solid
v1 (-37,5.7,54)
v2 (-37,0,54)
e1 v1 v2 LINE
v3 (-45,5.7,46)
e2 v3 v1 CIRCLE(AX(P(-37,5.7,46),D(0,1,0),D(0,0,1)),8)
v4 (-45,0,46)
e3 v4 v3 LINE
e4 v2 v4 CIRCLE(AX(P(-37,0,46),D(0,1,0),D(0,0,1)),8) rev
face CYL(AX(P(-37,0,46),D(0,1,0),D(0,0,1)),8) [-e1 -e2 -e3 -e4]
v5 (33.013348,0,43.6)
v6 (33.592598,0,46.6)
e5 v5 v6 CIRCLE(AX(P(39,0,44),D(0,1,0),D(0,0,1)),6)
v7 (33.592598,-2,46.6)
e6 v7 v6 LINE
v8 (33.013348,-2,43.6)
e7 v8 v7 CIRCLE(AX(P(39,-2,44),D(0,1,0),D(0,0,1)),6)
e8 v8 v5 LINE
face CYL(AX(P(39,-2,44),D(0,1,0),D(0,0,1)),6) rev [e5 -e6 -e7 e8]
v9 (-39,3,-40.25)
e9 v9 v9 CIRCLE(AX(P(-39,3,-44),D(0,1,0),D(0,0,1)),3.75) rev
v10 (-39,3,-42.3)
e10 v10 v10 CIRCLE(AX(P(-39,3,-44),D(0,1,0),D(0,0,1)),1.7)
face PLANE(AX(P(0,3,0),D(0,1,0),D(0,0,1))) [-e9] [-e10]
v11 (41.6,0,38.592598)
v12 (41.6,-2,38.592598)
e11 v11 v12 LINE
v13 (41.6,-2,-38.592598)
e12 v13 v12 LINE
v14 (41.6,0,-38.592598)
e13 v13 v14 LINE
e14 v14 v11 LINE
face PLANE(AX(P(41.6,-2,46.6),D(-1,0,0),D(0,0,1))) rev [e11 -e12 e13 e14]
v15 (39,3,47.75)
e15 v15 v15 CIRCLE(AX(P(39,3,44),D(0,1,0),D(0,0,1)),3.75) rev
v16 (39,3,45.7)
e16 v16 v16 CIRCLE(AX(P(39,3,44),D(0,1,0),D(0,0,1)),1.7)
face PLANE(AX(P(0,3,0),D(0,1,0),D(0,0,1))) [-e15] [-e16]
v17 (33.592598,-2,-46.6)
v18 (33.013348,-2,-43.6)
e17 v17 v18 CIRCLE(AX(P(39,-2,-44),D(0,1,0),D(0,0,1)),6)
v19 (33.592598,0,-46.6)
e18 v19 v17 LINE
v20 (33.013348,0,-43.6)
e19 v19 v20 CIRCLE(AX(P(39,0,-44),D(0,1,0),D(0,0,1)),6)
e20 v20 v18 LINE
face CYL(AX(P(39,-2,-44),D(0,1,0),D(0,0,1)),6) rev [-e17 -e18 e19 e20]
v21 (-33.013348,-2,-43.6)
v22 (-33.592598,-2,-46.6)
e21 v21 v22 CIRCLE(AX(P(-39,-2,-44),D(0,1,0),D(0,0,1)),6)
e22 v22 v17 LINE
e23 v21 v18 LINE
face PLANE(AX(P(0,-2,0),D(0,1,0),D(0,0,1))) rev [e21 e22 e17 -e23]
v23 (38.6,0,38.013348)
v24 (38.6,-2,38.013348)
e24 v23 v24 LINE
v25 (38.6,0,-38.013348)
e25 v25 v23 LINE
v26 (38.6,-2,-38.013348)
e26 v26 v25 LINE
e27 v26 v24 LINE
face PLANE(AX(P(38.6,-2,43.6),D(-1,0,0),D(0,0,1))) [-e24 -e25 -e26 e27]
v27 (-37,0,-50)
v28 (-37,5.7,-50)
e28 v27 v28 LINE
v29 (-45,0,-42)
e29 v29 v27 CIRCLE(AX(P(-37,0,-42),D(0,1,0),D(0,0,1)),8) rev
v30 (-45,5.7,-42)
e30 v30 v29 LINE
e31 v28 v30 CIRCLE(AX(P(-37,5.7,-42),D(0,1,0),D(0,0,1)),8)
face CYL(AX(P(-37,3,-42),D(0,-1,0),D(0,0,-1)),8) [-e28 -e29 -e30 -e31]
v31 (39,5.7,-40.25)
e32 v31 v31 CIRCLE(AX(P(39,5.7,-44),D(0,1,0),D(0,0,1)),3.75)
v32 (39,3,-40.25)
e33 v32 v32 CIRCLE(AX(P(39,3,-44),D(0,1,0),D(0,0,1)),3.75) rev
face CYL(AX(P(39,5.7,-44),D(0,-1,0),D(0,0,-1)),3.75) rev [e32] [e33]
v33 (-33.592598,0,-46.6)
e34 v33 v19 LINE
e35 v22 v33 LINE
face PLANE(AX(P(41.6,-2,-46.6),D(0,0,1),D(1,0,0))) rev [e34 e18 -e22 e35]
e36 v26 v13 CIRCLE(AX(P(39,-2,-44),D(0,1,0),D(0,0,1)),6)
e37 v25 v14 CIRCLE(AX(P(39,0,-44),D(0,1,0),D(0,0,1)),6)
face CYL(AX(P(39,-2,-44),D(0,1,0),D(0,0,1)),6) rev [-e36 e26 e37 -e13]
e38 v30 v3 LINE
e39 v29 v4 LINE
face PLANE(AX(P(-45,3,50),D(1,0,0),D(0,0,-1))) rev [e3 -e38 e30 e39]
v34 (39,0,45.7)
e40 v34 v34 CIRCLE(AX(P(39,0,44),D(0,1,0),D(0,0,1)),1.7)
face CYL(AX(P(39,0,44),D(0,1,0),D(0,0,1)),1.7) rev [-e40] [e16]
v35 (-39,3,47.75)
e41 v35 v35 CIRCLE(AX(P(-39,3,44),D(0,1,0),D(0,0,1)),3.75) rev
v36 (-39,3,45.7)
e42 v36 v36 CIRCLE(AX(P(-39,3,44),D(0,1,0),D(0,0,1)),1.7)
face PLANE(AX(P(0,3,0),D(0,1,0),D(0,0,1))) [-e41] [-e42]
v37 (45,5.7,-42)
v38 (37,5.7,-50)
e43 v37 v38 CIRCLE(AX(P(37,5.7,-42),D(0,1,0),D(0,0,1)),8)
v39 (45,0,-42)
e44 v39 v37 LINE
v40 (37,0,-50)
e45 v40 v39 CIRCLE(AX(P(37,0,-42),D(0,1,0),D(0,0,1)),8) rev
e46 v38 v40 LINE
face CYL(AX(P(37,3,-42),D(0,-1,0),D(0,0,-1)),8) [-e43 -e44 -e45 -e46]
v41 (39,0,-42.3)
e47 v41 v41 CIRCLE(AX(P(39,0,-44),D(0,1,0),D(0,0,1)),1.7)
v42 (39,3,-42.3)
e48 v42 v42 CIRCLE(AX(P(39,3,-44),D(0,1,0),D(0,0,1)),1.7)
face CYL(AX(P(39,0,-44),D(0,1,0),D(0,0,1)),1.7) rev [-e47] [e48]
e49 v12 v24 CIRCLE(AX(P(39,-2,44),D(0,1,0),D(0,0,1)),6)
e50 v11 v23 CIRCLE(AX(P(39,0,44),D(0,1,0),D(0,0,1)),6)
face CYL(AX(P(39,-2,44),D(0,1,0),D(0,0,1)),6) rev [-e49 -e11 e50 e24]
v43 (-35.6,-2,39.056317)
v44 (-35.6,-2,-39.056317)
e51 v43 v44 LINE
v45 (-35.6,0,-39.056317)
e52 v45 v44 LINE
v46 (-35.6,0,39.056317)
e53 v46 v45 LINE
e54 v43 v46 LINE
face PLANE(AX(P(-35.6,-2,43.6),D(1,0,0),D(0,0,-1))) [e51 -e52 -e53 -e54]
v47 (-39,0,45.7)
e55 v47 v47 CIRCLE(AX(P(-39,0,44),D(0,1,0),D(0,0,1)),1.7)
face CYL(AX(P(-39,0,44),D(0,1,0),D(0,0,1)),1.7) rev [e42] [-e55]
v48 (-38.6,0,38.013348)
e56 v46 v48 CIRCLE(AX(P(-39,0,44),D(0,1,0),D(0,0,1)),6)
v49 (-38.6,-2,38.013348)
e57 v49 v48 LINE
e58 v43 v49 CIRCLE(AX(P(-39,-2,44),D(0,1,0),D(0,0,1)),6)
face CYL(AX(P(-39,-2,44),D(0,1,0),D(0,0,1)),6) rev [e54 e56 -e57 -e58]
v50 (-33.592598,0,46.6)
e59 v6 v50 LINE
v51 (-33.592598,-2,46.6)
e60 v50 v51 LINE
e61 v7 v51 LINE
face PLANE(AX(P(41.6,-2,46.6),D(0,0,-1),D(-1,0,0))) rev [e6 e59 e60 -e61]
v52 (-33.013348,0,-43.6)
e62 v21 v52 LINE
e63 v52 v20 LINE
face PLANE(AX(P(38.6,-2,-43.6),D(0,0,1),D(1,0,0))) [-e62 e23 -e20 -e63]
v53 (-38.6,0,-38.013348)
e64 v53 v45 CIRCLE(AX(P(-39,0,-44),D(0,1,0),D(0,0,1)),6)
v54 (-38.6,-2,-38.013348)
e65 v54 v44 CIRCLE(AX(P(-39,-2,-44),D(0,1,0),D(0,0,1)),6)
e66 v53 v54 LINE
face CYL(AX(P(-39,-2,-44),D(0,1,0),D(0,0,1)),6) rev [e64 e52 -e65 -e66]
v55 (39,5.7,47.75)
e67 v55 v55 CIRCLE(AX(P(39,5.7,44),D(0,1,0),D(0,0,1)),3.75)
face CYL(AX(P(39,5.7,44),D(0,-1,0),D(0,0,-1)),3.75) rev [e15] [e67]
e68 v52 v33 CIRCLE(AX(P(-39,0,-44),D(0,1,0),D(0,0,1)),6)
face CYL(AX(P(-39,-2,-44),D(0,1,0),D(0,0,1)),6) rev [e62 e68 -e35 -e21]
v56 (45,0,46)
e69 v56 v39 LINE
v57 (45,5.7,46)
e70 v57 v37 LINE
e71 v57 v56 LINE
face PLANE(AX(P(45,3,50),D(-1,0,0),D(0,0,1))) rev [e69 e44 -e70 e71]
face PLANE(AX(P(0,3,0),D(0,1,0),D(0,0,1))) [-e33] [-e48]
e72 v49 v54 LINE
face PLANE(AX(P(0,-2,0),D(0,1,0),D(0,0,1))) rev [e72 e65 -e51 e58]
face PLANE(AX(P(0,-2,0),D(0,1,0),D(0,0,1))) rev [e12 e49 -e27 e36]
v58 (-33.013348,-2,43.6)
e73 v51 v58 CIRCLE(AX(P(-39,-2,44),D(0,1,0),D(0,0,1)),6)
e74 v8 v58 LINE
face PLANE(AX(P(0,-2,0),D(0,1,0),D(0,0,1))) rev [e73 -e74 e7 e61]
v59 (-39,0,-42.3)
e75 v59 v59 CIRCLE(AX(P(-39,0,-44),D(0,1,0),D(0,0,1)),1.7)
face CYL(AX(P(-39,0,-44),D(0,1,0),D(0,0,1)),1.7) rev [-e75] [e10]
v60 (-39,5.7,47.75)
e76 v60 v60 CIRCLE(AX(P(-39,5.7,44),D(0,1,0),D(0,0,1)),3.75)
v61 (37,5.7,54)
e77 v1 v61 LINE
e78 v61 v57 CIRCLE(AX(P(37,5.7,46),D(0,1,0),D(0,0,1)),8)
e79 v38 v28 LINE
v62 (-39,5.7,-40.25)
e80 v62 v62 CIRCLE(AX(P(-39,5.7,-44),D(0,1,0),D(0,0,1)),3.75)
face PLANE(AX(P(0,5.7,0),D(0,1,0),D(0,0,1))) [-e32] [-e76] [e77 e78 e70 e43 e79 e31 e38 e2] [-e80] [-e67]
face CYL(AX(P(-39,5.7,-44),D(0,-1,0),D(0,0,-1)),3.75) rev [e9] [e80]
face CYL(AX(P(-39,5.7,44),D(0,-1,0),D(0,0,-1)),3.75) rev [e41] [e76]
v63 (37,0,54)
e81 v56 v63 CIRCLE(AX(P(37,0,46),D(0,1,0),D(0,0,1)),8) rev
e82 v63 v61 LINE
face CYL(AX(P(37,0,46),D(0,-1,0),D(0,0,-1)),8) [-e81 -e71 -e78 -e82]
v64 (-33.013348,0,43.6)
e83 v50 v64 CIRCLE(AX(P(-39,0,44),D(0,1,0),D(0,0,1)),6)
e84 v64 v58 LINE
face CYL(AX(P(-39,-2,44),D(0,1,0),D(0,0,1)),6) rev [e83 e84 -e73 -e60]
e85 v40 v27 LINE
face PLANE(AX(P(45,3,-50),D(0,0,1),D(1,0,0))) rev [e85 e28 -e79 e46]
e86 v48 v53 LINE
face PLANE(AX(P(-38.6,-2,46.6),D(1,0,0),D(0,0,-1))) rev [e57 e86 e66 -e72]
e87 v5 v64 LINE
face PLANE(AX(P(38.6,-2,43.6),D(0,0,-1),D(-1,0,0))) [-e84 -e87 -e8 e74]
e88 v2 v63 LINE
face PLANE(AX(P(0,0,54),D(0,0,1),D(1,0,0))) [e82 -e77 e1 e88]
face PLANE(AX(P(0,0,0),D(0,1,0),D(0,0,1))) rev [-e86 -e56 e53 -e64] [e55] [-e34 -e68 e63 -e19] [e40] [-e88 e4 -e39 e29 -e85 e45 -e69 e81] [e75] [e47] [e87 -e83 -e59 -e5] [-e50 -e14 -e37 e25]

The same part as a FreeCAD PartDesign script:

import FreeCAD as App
import Part
import Sketcher
from FreeCAD import Vector
Q = App.Units.Quantity


def edges_at(feature, points):
    """Names of the edges that pass closest to the given points."""
    edges = feature.Shape.Edges
    near = lambda p: min(range(len(edges)), key=lambda i: edges[i].distToShape(Part.Vertex(*p))[0])
    return sorted({f"Edge{near(p) + 1}" for p in points})

doc = App.newDocument("Part")
body = doc.addObject("PartDesign::Body", "Body")

# Sketch on XZ plane
sketch1 = doc.addObject("Sketcher::SketchObject", "Sketch")
body.addObject(sketch1)
sketch1.AttachmentSupport = (doc.XZ_Plane, [""])
sketch1.MapMode = "FlatFace"
sketch1.addGeometry([
    Part.LineSegment(Vector(-45, -50, 0), Vector(-45, 50, 0)),
    Part.LineSegment(Vector(-45, 50, 0), Vector(45, 50, 0)),
    Part.LineSegment(Vector(45, 50, 0), Vector(45, -50, 0)),
    Part.LineSegment(Vector(45, -50, 0), Vector(-45, -50, 0)),
], False)
sketch1.addConstraint([
    Sketcher.Constraint("Coincident", 0, 2, 1, 1),
    Sketcher.Constraint("Coincident", 1, 2, 2, 1),
    Sketcher.Constraint("Coincident", 2, 2, 3, 1),
    Sketcher.Constraint("Coincident", 3, 2, 0, 1),
    Sketcher.Constraint("Vertical", 0),
    Sketcher.Constraint("Horizontal", 1),
    Sketcher.Constraint("Vertical", 2),
    Sketcher.Constraint("Horizontal", 3),
    Sketcher.Constraint("Symmetric", 0, 2, 2, 2, -1, 1),
    Sketcher.Constraint("DistanceX", 1, 1, 1, 2, Q("90 mm")),
    Sketcher.Constraint("DistanceY", 0, 1, 0, 2, Q("100 mm")),
])
pad1 = doc.addObject("PartDesign::Pad", "Pad")
body.addObject(pad1)
pad1.Profile = sketch1
pad1.Length = 3
pad1.Reversed = True

# Sketch on XZ plane
sketch2 = doc.addObject("Sketcher::SketchObject", "Sketch001")
body.addObject(sketch2)
sketch2.AttachmentSupport = (doc.XZ_Plane, [""])
sketch2.MapMode = "FlatFace"
sketch2.AttachmentOffset = App.Placement(Vector(0, 0, -3), App.Rotation())
sketch2.addGeometry([
    Part.Circle(Vector(-39, -44, 0), Vector(0, 0, 1), 1.7),
    Part.Circle(Vector(39, -44, 0), Vector(0, 0, 1), 1.7),
    Part.Circle(Vector(39, 44, 0), Vector(0, 0, 1), 1.7),
    Part.Circle(Vector(-39, 44, 0), Vector(0, 0, 1), 1.7),
], False)
sketch2.addConstraint([
    Sketcher.Constraint("Equal", 0, 1),
    Sketcher.Constraint("Equal", 1, 2),
    Sketcher.Constraint("Equal", 2, 3),
    Sketcher.Constraint("Symmetric", 0, 3, 2, 3, -1, 1),
    Sketcher.Constraint("Symmetric", 1, 3, 3, 3, -1, 1),
    Sketcher.Constraint("Symmetric", 0, 3, 1, 3, -2),
    Sketcher.Constraint("Diameter", 0, Q("3.4 mm")),
    Sketcher.Constraint("DistanceX", 0, 3, -1, 1, Q("39 mm")),
    Sketcher.Constraint("DistanceY", 0, 3, -1, 1, Q("44 mm")),
])
pocket1 = doc.addObject("PartDesign::Pocket", "Pocket")
body.addObject(pocket1)
pocket1.Profile = sketch2
pocket1.Type = "ThroughAll"
pocket1.Reversed = True

# Sketch on XZ plane
sketch3 = doc.addObject("Sketcher::SketchObject", "Sketch002")
body.addObject(sketch3)
sketch3.AttachmentSupport = (doc.XZ_Plane, [""])
sketch3.MapMode = "FlatFace"
sketch3.addGeometry([
    Part.LineSegment(Vector(-39, 47, 0), Vector(-39, -47, 0)),  # 0
    Part.LineSegment(Vector(-39, -47, 0), Vector(42, -47, 0)),  # 1
    Part.LineSegment(Vector(42, -47, 0), Vector(42, 47, 0)),  # 2
    Part.LineSegment(Vector(42, 47, 0), Vector(-39, 47, 0)),  # 3
    Part.LineSegment(Vector(39, -44, 0), Vector(-36, -44, 0)),  # 4
    Part.LineSegment(Vector(-36, -44, 0), Vector(-36, 44, 0)),  # 5
    Part.LineSegment(Vector(-36, 44, 0), Vector(39, 44, 0)),  # 6
    Part.LineSegment(Vector(39, 44, 0), Vector(39, -44, 0)),  # 7
], False)
sketch3.addConstraint([
    Sketcher.Constraint("Coincident", 0, 2, 1, 1),
    Sketcher.Constraint("Coincident", 1, 2, 2, 1),
    Sketcher.Constraint("Coincident", 2, 2, 3, 1),
    Sketcher.Constraint("Coincident", 3, 2, 0, 1),
    Sketcher.Constraint("Coincident", 4, 2, 5, 1),
    Sketcher.Constraint("Coincident", 5, 2, 6, 1),
    Sketcher.Constraint("Coincident", 6, 2, 7, 1),
    Sketcher.Constraint("Coincident", 7, 2, 4, 1),
    Sketcher.Constraint("Vertical", 0),
    Sketcher.Constraint("Horizontal", 1),
    Sketcher.Constraint("Vertical", 2),
    Sketcher.Constraint("Horizontal", 3),
    Sketcher.Constraint("Horizontal", 4),
    Sketcher.Constraint("Vertical", 5),
    Sketcher.Constraint("Horizontal", 6),
    Sketcher.Constraint("Vertical", 7),
    Sketcher.Constraint("DistanceX", 1, 1, 1, 2, Q("80.2 mm")),
    Sketcher.Constraint("DistanceX", 4, 2, 4, 1, Q("74.2 mm")),
    Sketcher.Constraint("DistanceY", 0, 2, 0, 1, Q("93.2 mm")),
    Sketcher.Constraint("DistanceY", 5, 1, 5, 2, Q("87.2 mm")),
    Sketcher.Constraint("DistanceX", 0, 2, 4, 2, Q("3 mm")),
    Sketcher.Constraint("DistanceY", 0, 2, 4, 2, Q("3 mm")),
    Sketcher.Constraint("DistanceX", 0, 2, -1, 1, Q("38.6 mm")),
    Sketcher.Constraint("DistanceY", 0, 2, -1, 1, Q("46.6 mm")),
])
pad2 = doc.addObject("PartDesign::Pad", "Pad001")
body.addObject(pad2)
pad2.Profile = sketch3
pad2.Length = 2

# Sketch on XZ plane
sketch4 = doc.addObject("Sketcher::SketchObject", "Sketch003")
body.addObject(sketch4)
sketch4.AttachmentSupport = (doc.XZ_Plane, [""])
sketch4.MapMode = "FlatFace"
sketch4.addGeometry([
    Part.Circle(Vector(-39, -44, 0), Vector(0, 0, 1), 6),
    Part.Circle(Vector(-39, 44, 0), Vector(0, 0, 1), 6),
    Part.Circle(Vector(39, 44, 0), Vector(0, 0, 1), 6),
    Part.Circle(Vector(39, -44, 0), Vector(0, 0, 1), 6),
], False)
sketch4.addConstraint([
    Sketcher.Constraint("Equal", 0, 1),
    Sketcher.Constraint("Equal", 1, 2),
    Sketcher.Constraint("Equal", 2, 3),
    Sketcher.Constraint("Symmetric", 0, 3, 2, 3, -1, 1),
    Sketcher.Constraint("Symmetric", 1, 3, 3, 3, -1, 1),
    Sketcher.Constraint("Symmetric", 1, 3, 2, 3, -2),
    Sketcher.Constraint("Diameter", 0, Q("12 mm")),
    Sketcher.Constraint("DistanceX", 0, 3, -1, 1, Q("39 mm")),
    Sketcher.Constraint("DistanceY", 0, 3, -1, 1, Q("44 mm")),
])
pocket2 = doc.addObject("PartDesign::Pocket", "Pocket001")
body.addObject(pocket2)
pocket2.Profile = sketch4
pocket2.Type = "ThroughAll"
pocket2.Reversed = True

# Sketch on XY plane
sketch5 = doc.addObject("Sketcher::SketchObject", "Sketch004")
body.addObject(sketch5)
sketch5.AttachmentSupport = (doc.XY_Plane, [""])
sketch5.MapMode = "FlatFace"
sketch5.AttachmentOffset = App.Placement(Vector(0, 0, 50), App.Rotation())
sketch5.addGeometry([
    Part.LineSegment(Vector(-45, 3, 0), Vector(-45, 0, 0)),
    Part.LineSegment(Vector(-45, 0, 0), Vector(45, 0, 0)),
    Part.LineSegment(Vector(45, 0, 0), Vector(45, 3, 0)),
    Part.LineSegment(Vector(45, 3, 0), Vector(-45, 3, 0)),
], False)
sketch5.addConstraint([
    Sketcher.Constraint("Coincident", 0, 2, 1, 1),
    Sketcher.Constraint("Coincident", 1, 2, 2, 1),
    Sketcher.Constraint("Coincident", 2, 2, 3, 1),
    Sketcher.Constraint("Coincident", 3, 2, 0, 1),
    Sketcher.Constraint("Vertical", 0),
    Sketcher.Constraint("Horizontal", 1),
    Sketcher.Constraint("Vertical", 2),
    Sketcher.Constraint("Horizontal", 3),
    Sketcher.Constraint("Symmetric", 0, 2, 1, 2, -1, 1),
    Sketcher.Constraint("DistanceX", 1, 1, 1, 2, Q("90 mm")),
    Sketcher.Constraint("DistanceY", 0, 2, 0, 1, Q("3 mm")),
])
pad3 = doc.addObject("PartDesign::Pad", "Pad002")
body.addObject(pad3)
pad3.Profile = sketch5
pad3.Length = 4

# Sketch on XZ plane
sketch6 = doc.addObject("Sketcher::SketchObject", "Sketch005")
body.addObject(sketch6)
sketch6.AttachmentSupport = (doc.XZ_Plane, [""])
sketch6.MapMode = "FlatFace"
sketch6.AttachmentOffset = App.Placement(Vector(0, 0, -3), App.Rotation())
sketch6.addGeometry([
    Part.LineSegment(Vector(-45, 54, 0), Vector(45, 54, 0)),  # 0
    Part.LineSegment(Vector(45, 54, 0), Vector(45, -50, 0)),  # 1
    Part.LineSegment(Vector(45, -50, 0), Vector(-45, -50, 0)),  # 2
    Part.LineSegment(Vector(-45, -50, 0), Vector(-45, 54, 0)),  # 3
    Part.Circle(Vector(-39, 44, 0), Vector(0, 0, 1), 3.8),  # 4
    Part.Circle(Vector(39, 44, 0), Vector(0, 0, 1), 3.8),  # 5
    Part.Circle(Vector(-39, -44, 0), Vector(0, 0, 1), 3.8),  # 6
    Part.Circle(Vector(39, -44, 0), Vector(0, 0, 1), 3.8),  # 7
], False)
sketch6.addConstraint([
    Sketcher.Constraint("Coincident", 0, 2, 1, 1),
    Sketcher.Constraint("Coincident", 1, 2, 2, 1),
    Sketcher.Constraint("Coincident", 2, 2, 3, 1),
    Sketcher.Constraint("Coincident", 3, 2, 0, 1),
    Sketcher.Constraint("Horizontal", 0),
    Sketcher.Constraint("Vertical", 1),
    Sketcher.Constraint("Horizontal", 2),
    Sketcher.Constraint("Vertical", 3),
    Sketcher.Constraint("Equal", 4, 5),
    Sketcher.Constraint("Equal", 5, 6),
    Sketcher.Constraint("Equal", 6, 7),
    Sketcher.Constraint("Symmetric", 5, 3, 6, 3, -1, 1),
    Sketcher.Constraint("Symmetric", 4, 3, 7, 3, -1, 1),
    Sketcher.Constraint("Symmetric", 4, 3, 5, 3, -2),
    Sketcher.Constraint("Diameter", 4, Q("7.5 mm")),
    Sketcher.Constraint("DistanceX", 0, 1, 0, 2, Q("90 mm")),
    Sketcher.Constraint("DistanceY", 1, 2, 1, 1, Q("104 mm")),
    Sketcher.Constraint("DistanceX", 4, 3, -1, 1, Q("39 mm")),
    Sketcher.Constraint("DistanceY", -1, 1, 4, 3, Q("44 mm")),
    Sketcher.Constraint("DistanceX", -1, 1, 0, 2, Q("45 mm")),
    Sketcher.Constraint("DistanceY", -1, 1, 0, 2, Q("54 mm")),
])
pad4 = doc.addObject("PartDesign::Pad", "Pad003")
body.addObject(pad4)
pad4.Profile = sketch6
pad4.Length = 2.7
pad4.Reversed = True
doc.recompute()

fillet = doc.addObject("PartDesign::Fillet", "Fillet")
body.addObject(fillet)
fillet.Base = (pad4, edges_at(pad4, [
    (-45, 2.85, 54),
    (45, 2.85, 54),
    (-45, 2.85, -50),
    (45, 2.85, -50),
]))
fillet.Radius = 8

doc.recompute()
